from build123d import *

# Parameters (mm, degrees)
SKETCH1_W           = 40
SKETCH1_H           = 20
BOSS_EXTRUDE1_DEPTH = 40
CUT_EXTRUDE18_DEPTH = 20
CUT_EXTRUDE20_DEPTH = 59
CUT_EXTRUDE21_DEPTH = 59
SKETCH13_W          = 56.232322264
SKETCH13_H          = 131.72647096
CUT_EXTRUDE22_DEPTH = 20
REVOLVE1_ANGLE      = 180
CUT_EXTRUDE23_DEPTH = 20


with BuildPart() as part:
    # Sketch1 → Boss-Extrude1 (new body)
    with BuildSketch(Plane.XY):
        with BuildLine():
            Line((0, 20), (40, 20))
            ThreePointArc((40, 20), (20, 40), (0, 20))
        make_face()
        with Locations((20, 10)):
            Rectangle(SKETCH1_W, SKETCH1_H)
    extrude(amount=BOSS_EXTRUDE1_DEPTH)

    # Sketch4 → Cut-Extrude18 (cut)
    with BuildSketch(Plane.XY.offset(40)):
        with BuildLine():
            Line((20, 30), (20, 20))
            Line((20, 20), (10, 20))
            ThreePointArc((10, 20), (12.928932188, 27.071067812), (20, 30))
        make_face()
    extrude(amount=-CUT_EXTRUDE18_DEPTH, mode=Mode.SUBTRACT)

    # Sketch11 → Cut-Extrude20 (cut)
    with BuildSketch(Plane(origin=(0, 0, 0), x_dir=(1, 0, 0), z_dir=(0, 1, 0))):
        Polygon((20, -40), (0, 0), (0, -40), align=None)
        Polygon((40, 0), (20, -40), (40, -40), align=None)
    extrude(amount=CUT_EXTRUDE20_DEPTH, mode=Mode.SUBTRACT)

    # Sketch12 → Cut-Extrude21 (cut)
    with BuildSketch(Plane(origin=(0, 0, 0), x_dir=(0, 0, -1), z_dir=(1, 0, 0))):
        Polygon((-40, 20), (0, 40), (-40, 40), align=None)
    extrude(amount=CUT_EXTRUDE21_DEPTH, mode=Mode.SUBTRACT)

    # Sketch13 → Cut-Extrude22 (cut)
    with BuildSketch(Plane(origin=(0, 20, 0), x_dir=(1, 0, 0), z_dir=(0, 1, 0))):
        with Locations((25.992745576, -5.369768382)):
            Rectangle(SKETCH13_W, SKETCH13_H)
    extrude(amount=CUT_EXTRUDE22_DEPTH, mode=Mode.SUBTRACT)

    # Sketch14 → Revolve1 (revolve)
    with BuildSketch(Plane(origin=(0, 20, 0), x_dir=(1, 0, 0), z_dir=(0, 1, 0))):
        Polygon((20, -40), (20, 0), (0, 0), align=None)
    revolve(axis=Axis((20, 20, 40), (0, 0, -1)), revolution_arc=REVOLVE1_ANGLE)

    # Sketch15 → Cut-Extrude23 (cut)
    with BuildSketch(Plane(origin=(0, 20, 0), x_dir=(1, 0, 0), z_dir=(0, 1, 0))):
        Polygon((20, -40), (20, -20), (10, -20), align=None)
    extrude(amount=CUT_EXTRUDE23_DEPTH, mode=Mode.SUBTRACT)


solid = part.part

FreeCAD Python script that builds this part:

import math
import FreeCAD as App
import Part
import Sketcher

V = App.Vector
Q = App.Units.Quantity

doc = App.newDocument("Part")
body = doc.addObject("PartDesign::Body", "Body")

# Sketch on XY plane
sketch1 = doc.addObject("Sketcher::SketchObject", "Sketch")
body.addObject(sketch1)
sketch1.AttachmentSupport = (doc.XY_Plane, [""])
sketch1.MapMode = "FlatFace"
sketch1.addGeometry([
    Part.ArcOfCircle(Part.Circle(V(20, 20, 0), V(0, 0, 1), 20), math.radians(0), math.radians(180)),
    Part.LineSegment(V(0, 20, 0), V(0, 0, 0)),
    Part.LineSegment(V(0, 0, 0), V(40, 0, 0)),
    Part.LineSegment(V(40, 0, 0), V(40, 20, 0)),
], False)
sketch1.addConstraint([
    Sketcher.Constraint("Tangent", 0, 2, 1, 1),
    Sketcher.Constraint("Coincident", 1, 2, 2, 1),
    Sketcher.Constraint("Coincident", 2, 2, 3, 1),
    Sketcher.Constraint("Tangent", 3, 2, 0, 1),
    Sketcher.Constraint("Vertical", 1),
    Sketcher.Constraint("Horizontal", 2),
    Sketcher.Constraint("Vertical", 3),
    Sketcher.Constraint("Coincident", 1, 2, -1, 1),
    Sketcher.Constraint("Radius", 0, Q("20 mm")),
    Sketcher.Constraint("DistanceY", 1, 2, 1, 1, Q("20 mm")),
])
pad1 = doc.addObject("PartDesign::Pad", "Pad")
body.addObject(pad1)
pad1.Profile = sketch1
pad1.Length = 40

# Sketch on XY plane
sketch2 = doc.addObject("Sketcher::SketchObject", "Sketch001")
body.addObject(sketch2)
sketch2.AttachmentSupport = (doc.XY_Plane, [""])
sketch2.MapMode = "FlatFace"
sketch2.AttachmentOffset = App.Placement(V(0, 0, 40), App.Rotation())
sketch2.addGeometry([
    Part.LineSegment(V(20, 20, 0), V(20, 30, 0)),
    Part.ArcOfCircle(Part.Circle(V(20, 20, 0), V(0, 0, 1), 10), math.radians(90), math.radians(180)),
    Part.LineSegment(V(10, 20, 0), V(20, 20, 0)),
], False)
sketch2.addConstraint([
    Sketcher.Constraint("Coincident", 0, 2, 1, 1),
    Sketcher.Constraint("Coincident", 1, 2, 2, 1),
    Sketcher.Constraint("Coincident", 2, 2, 0, 1),
    Sketcher.Constraint("Vertical", 0),
    Sketcher.Constraint("Horizontal", 2),
    Sketcher.Constraint("Coincident", 2, 2, 1, 3),
    Sketcher.Constraint("Radius", 1, Q("10 mm")),
    Sketcher.Constraint("DistanceX", -1, 1, 1, 3, Q("20 mm")),
    Sketcher.Constraint("DistanceY", -1, 1, 1, 3, Q("20 mm")),
])
pocket1 = doc.addObject("PartDesign::Pocket", "Pocket")
body.addObject(pocket1)
pocket1.Profile = sketch2
pocket1.Length = 20

# Sketch on XZ plane
sketch3 = doc.addObject("Sketcher::SketchObject", "Sketch002")
body.addObject(sketch3)
sketch3.AttachmentSupport = (doc.XZ_Plane, [""])
sketch3.MapMode = "FlatFace"
sketch3.addGeometry([
    Part.LineSegment(V(20, 40, 0), V(0, 0, 0)),  # 0
    Part.LineSegment(V(0, 0, 0), V(0, 40, 0)),  # 1
    Part.LineSegment(V(0, 40, 0), V(20, 40, 0)),  # 2
    Part.LineSegment(V(40, 0, 0), V(20, 40, 0)),  # 3
    Part.LineSegment(V(20, 40, 0), V(40, 40, 0)),  # 4
    Part.LineSegment(V(40, 40, 0), V(40, 0, 0)),  # 5
], False)
sketch3.addConstraint([
    Sketcher.Constraint("Coincident", 0, 2, 1, 1),
    Sketcher.Constraint("Coincident", 1, 2, 2, 1),
    Sketcher.Constraint("Coincident", 2, 2, 0, 1),
    Sketcher.Constraint("Coincident", 3, 2, 4, 1),
    Sketcher.Constraint("Coincident", 4, 2, 5, 1),
    Sketcher.Constraint("Coincident", 5, 2, 3, 1),
    Sketcher.Constraint("Vertical", 1),
    Sketcher.Constraint("Horizontal", 2),
    Sketcher.Constraint("Horizontal", 4),
    Sketcher.Constraint("Vertical", 5),
    Sketcher.Constraint("Coincident", 0, 2, -1, 1),
    Sketcher.Constraint("Coincident", 3, 2, 2, 2),
    Sketcher.Constraint("PointOnObject", 5, 2, -1),
    Sketcher.Constraint("Equal", 2, 4),
    Sketcher.Constraint("DistanceX", 2, 1, 2, 2, Q("20 mm")),
    Sketcher.Constraint("DistanceY", 1, 1, 1, 2, Q("40 mm")),
])
pocket2 = doc.addObject("PartDesign::Pocket", "Pocket001")
body.addObject(pocket2)
pocket2.Profile = sketch3
pocket2.Length = 59

# Sketch on YZ plane
sketch4 = doc.addObject("Sketcher::SketchObject", "Sketch003")
body.addObject(sketch4)
sketch4.AttachmentSupport = (doc.YZ_Plane, [""])
sketch4.MapMode = "FlatFace"
sketch4.addGeometry([
    Part.LineSegment(V(20, 40, 0), V(40, 0, 0)),
    Part.LineSegment(V(40, 0, 0), V(40, 40, 0)),
    Part.LineSegment(V(40, 40, 0), V(20, 40, 0)),
], False)
sketch4.addConstraint([
    Sketcher.Constraint("Coincident", 0, 2, 1, 1),
    Sketcher.Constraint("Coincident", 1, 2, 2, 1),
    Sketcher.Constraint("Coincident", 2, 2, 0, 1),
    Sketcher.Constraint("Vertical", 1),
    Sketcher.Constraint("Horizontal", 2),
    Sketcher.Constraint("PointOnObject", 0, 2, -1),
    Sketcher.Constraint("DistanceX", 2, 2, 2, 1, Q("20 mm")),
    Sketcher.Constraint("DistanceY", 1, 1, 1, 2, Q("40 mm")),
    Sketcher.Constraint("DistanceX", -1, 1, 0, 2, Q("40 mm")),
])
pocket3 = doc.addObject("PartDesign::Pocket", "Pocket002")
body.addObject(pocket3)
pocket3.Profile = sketch4
pocket3.Length = 59
pocket3.Reversed = True

# Sketch on XZ plane
sketch5 = doc.addObject("Sketcher::SketchObject", "Sketch004")
body.addObject(sketch5)
sketch5.AttachmentSupport = (doc.XZ_Plane, [""])
sketch5.MapMode = "FlatFace"
sketch5.AttachmentOffset = App.Placement(V(0, 0, -20), App.Rotation())
sketch5.addGeometry([
    Part.LineSegment(V(-2, -60, 0), V(-2, 71, 0)),
    Part.LineSegment(V(-2, 71, 0), V(54, 71, 0)),
    Part.LineSegment(V(54, 71, 0), V(54, -60, 0)),
    Part.LineSegment(V(54, -60, 0), V(-2, -60, 0)),
], False)
sketch5.addConstraint([
    Sketcher.Constraint("Coincident", 0, 2, 1, 1),
    Sketcher.Constraint("Coincident", 1, 2, 2, 1),
    Sketcher.Constraint("Coincident", 2, 2, 3, 1),
    Sketcher.Constraint("Coincident", 3, 2, 0, 1),
    Sketcher.Constraint("Vertical", 0),
    Sketcher.Constraint("Horizontal", 1),
    Sketcher.Constraint("Vertical", 2),
    Sketcher.Constraint("Horizontal", 3),
    Sketcher.Constraint("DistanceY", 0, 1, 0, 2, Q("131.726471 mm")),
    Sketcher.Constraint("DistanceX", 1, 1, 1, 2, Q("56.232322 mm")),
    Sketcher.Constraint("DistanceX", 0, 2, -1, 1, Q("2.123416 mm")),
    Sketcher.Constraint("DistanceY", -1, 1, 0, 2, Q("71.233004 mm")),
])
pocket4 = doc.addObject("PartDesign::Pocket", "Pocket003")
body.addObject(pocket4)
pocket4.Profile = sketch5
pocket4.Length = 20

# Sketch on XZ plane
sketch6 = doc.addObject("Sketcher::SketchObject", "Sketch005")
body.addObject(sketch6)
sketch6.AttachmentSupport = (doc.XZ_Plane, [""])
sketch6.MapMode = "FlatFace"
sketch6.AttachmentOffset = App.Placement(V(0, 0, -20), App.Rotation())
sketch6.addGeometry([
    Part.LineSegment(V(20, 40, 0), V(20, 0, 0)),
    Part.LineSegment(V(20, 0, 0), V(0, 0, 0)),
    Part.LineSegment(V(0, 0, 0), V(20, 40, 0)),
], False)
sketch6.addGeometry(Part.LineSegment(V(20, 40, 0), V(20, 0, 0)), True)  # axis
sketch6.addConstraint([
    Sketcher.Constraint("Coincident", 0, 2, 1, 1),
    Sketcher.Constraint("Coincident", 1, 2, 2, 1),
    Sketcher.Constraint("Coincident", 2, 2, 0, 1),
    Sketcher.Constraint("Vertical", 0),
    Sketcher.Constraint("Horizontal", 1),
    Sketcher.Constraint("Vertical", 3),
    Sketcher.Constraint("Coincident", 1, 2, -1, 1),
    Sketcher.Constraint("Coincident", 3, 1, 2, 2),
    Sketcher.Constraint("PointOnObject", 3, 2, -1),
    Sketcher.Constraint("DistanceX", 1, 2, 1, 1, Q("20 mm")),
    Sketcher.Constraint("DistanceY", 0, 2, 0, 1, Q("40 mm")),
])
revolution = doc.addObject("PartDesign::Revolution", "Revolution")
body.addObject(revolution)
revolution.Profile = sketch6
revolution.ReferenceAxis = (sketch6, ["Axis0"])
revolution.Angle = 180

# Sketch on XZ plane
sketch7 = doc.addObject("Sketcher::SketchObject", "Sketch006")
body.addObject(sketch7)
sketch7.AttachmentSupport = (doc.XZ_Plane, [""])
sketch7.MapMode = "FlatFace"
sketch7.AttachmentOffset = App.Placement(V(0, 0, -20), App.Rotation())
sketch7.addGeometry([
    Part.LineSegment(V(20, 40, 0), V(20, 20, 0)),
    Part.LineSegment(V(20, 20, 0), V(10, 20, 0)),
    Part.LineSegment(V(10, 20, 0), V(20, 40, 0)),
], False)
sketch7.addConstraint([
    Sketcher.Constraint("Coincident", 0, 2, 1, 1),
    Sketcher.Constraint("Coincident", 1, 2, 2, 1),
    Sketcher.Constraint("Coincident", 2, 2, 0, 1),
    Sketcher.Constraint("Vertical", 0),
    Sketcher.Constraint("Horizontal", 1),
    Sketcher.Constraint("DistanceX", 1, 2, 1, 1, Q("10 mm")),
    Sketcher.Constraint("DistanceY", 0, 2, 0, 1, Q("20 mm")),
    Sketcher.Constraint("DistanceX", -1, 1, 0, 2, Q("20 mm")),
    Sketcher.Constraint("DistanceY", -1, 1, 0, 2, Q("20 mm")),
])
pocket5 = doc.addObject("PartDesign::Pocket", "Pocket004")
body.addObject(pocket5)
pocket5.Profile = sketch7
pocket5.Length = 20

doc.recompute()
